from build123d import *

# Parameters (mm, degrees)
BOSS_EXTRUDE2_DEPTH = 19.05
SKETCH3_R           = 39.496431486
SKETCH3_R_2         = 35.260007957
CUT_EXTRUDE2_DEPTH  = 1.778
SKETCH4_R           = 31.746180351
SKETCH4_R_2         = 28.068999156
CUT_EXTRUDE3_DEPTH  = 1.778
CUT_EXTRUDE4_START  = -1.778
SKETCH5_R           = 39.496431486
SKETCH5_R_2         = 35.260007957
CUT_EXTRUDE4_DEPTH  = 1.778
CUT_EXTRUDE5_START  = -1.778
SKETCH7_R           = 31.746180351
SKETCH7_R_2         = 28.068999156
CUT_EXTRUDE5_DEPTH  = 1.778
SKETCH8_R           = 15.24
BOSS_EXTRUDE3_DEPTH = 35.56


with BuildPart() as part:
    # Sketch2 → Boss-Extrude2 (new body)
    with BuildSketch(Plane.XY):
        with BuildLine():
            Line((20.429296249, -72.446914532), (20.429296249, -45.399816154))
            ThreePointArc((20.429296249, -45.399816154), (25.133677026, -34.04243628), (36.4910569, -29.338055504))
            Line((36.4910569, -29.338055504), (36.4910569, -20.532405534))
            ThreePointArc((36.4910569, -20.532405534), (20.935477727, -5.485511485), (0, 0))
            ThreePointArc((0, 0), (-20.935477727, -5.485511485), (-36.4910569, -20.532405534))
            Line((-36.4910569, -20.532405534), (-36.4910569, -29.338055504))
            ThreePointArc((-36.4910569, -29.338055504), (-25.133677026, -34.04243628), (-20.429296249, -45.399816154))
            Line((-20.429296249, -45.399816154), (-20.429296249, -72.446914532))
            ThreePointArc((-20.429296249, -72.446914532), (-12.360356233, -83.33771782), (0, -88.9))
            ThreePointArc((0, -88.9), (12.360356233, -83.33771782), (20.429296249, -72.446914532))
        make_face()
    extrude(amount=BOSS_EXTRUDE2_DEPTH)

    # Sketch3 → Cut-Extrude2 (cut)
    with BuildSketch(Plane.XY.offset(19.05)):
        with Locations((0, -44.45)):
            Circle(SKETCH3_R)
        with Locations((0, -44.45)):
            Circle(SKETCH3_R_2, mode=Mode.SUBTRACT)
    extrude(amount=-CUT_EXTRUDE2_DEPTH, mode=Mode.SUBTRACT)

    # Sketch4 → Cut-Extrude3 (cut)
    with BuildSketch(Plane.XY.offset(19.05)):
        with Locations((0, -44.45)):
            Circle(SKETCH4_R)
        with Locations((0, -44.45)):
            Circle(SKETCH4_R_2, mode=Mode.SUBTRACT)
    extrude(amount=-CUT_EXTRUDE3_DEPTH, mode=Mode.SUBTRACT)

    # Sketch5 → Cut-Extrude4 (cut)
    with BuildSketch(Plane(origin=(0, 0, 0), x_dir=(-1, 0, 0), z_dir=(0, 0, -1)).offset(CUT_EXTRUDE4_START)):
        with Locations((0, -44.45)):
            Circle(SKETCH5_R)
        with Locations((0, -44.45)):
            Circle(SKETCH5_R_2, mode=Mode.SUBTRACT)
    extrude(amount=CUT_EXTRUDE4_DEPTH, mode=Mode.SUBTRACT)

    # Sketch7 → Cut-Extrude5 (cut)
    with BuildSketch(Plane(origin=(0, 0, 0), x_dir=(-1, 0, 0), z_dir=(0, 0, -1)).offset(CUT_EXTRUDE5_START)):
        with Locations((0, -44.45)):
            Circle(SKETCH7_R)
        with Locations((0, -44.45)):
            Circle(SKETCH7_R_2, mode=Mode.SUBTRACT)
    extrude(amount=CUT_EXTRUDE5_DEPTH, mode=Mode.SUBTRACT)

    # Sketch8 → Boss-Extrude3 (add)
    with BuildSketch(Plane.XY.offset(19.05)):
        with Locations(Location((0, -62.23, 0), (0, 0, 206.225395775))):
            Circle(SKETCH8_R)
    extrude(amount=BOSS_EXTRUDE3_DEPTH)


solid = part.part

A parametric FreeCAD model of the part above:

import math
import FreeCAD as App
import Part
import Sketcher
from FreeCAD import Vector
Q = App.Units.Quantity

doc = App.newDocument("Part")
params = doc.addObject("Spreadsheet::Sheet", "Params")
for row, (alias, value) in enumerate([
    ("pad1_length", "0.75 in"),
    ("pocket1_length", "0.07 in"),
    ("pocket2_length", "0.07 in"),
    ("pocket3_length", "0.07 in"),
    ("pocket4_length", "0.07 in"),
    ("sketch6_diameter", "1.2 in"),
    ("pad2_length", "1.4 in"),
], start=1):
    params.set(f"A{row}", alias)
    params.set(f"B{row}", "=" + value)
    params.setAlias(f"B{row}", alias)

body = doc.addObject("PartDesign::Body", "Body")

# Sketch on XY plane
sketch1 = doc.addObject("Sketcher::SketchObject", "Sketch")
body.addObject(sketch1)
sketch1.AttachmentSupport = (doc.XY_Plane, [""])
sketch1.MapMode = "FlatFace"
sketch1.addGeometry([
    Part.LineSegment(Vector(20, -72, 0), Vector(20, -45, 0)),  # 0
    Part.ArcOfCircle(Part.Circle(Vector(36, -45, 0), Vector(0, 0, 1), 16), math.radians(90), math.radians(180)),  # 1
    Part.LineSegment(Vector(36, -29, 0), Vector(36, -21, 0)),  # 2
    Part.ArcOfCircle(Part.Circle(Vector(0, -43, 0), Vector(0, 0, 1), 43), math.radians(31), math.radians(90)),  # 3
    Part.ArcOfCircle(Part.Circle(Vector(0, -43, 0), Vector(0, 0, 1), 43), math.radians(90), math.radians(149)),  # 4
    Part.LineSegment(Vector(-36, -21, 0), Vector(-36, -29, 0)),  # 5
    Part.ArcOfCircle(Part.Circle(Vector(-36, -45, 0), Vector(0, 0, 1), 16), math.radians(0), math.radians(90)),  # 6
    Part.LineSegment(Vector(-20, -45, 0), Vector(-20, -72, 0)),  # 7
    Part.ArcOfCircle(Part.Circle(Vector(4, -62, 0), Vector(0, 0, 1), 27), math.radians(-158), math.radians(-100)),  # 8
    Part.ArcOfCircle(Part.Circle(Vector(-4, -62, 0), Vector(0, 0, 1), 27), math.radians(-80), math.radians(-22)),  # 9
], False)
sketch1.addConstraint([
    Sketcher.Constraint("Tangent", 0, 2, 1, 2),
    Sketcher.Constraint("Coincident", 1, 1, 2, 1),
    Sketcher.Constraint("Coincident", 2, 2, 3, 1),
    Sketcher.Constraint("Tangent", 3, 2, 4, 1),
    Sketcher.Constraint("Coincident", 4, 2, 5, 1),
    Sketcher.Constraint("Coincident", 5, 2, 6, 2),
    Sketcher.Constraint("Tangent", 6, 1, 7, 1),
    Sketcher.Constraint("Coincident", 7, 2, 8, 1),
    Sketcher.Constraint("Coincident", 8, 2, 9, 1),
    Sketcher.Constraint("Coincident", 9, 2, 0, 1),
    Sketcher.Constraint("Vertical", 0),
    Sketcher.Constraint("Vertical", 2),
    Sketcher.Constraint("Vertical", 5),
    Sketcher.Constraint("Vertical", 7),
    Sketcher.Constraint("Coincident", 3, 2, -1, 1),
    Sketcher.Constraint("Equal", 3, 4),
    Sketcher.Constraint("Equal", 1, 6),
    Sketcher.Constraint("Equal", 8, 9),
    Sketcher.Constraint("Symmetric", 1, 3, 6, 3, -2),
    Sketcher.Constraint("Symmetric", 8, 3, 9, 3, -2),
    Sketcher.Constraint("Symmetric", 2, 2, 4, 2, -2),
    Sketcher.Constraint("Vertical", 6, 3, 4, 2),
    Sketcher.Constraint("DistanceY", 8, 2, -1, 1, Q("3.5 in")),
    Sketcher.Constraint("Radius", 1, 16.061761),
    Sketcher.Constraint("Radius", 8, 26.852441),
    Sketcher.Constraint("DistanceY", 0, 1, 0, 2, 27.047098),
    Sketcher.Constraint("Radius", 3, 42.692925),
    Sketcher.Constraint("DistanceY", 2, 1, 2, 2, 8.80565),
    Sketcher.Constraint("DistanceY", 8, 3, -1, 1, 62.42435),
])
pad1 = doc.addObject("PartDesign::Pad", "Pad")
body.addObject(pad1)
pad1.Profile = sketch1
pad1.setExpression("Length", "Params.pad1_length")

# Sketch on XY plane
sketch2 = doc.addObject("Sketcher::SketchObject", "Sketch001")
body.addObject(sketch2)
sketch2.AttachmentSupport = (doc.XY_Plane, [""])
sketch2.MapMode = "FlatFace"
sketch2.AttachmentOffset = App.Placement(Vector(0, 0, 0.75 * 25.4), App.Rotation())
sketch2.addGeometry([
    Part.Circle(Vector(0, -44, 0), Vector(0, 0, 1), 39),
    Part.Circle(Vector(0, -44, 0), Vector(0, 0, 1), 35),
], False)
sketch2.addConstraint([
    Sketcher.Constraint("Coincident", 1, 3, 0, 3),
    Sketcher.Constraint("PointOnObject", 0, 3, -2),
    Sketcher.Constraint("DistanceY", 0, 3, -1, 1, Q("1.75 in")),
    Sketcher.Constraint("Diameter", 0, 78.992863),
    Sketcher.Constraint("Diameter", 1, 70.520016),
])
pocket1 = doc.addObject("PartDesign::Pocket", "Pocket")
body.addObject(pocket1)
pocket1.Profile = sketch2
pocket1.setExpression("Length", "Params.pocket1_length")

# Sketch on XY plane
sketch3 = doc.addObject("Sketcher::SketchObject", "Sketch002")
body.addObject(sketch3)
sketch3.AttachmentSupport = (doc.XY_Plane, [""])
sketch3.MapMode = "FlatFace"
sketch3.AttachmentOffset = App.Placement(Vector(0, 0, 0.75 * 25.4), App.Rotation())
sketch3.addGeometry([
    Part.Circle(Vector(0, -44, 0), Vector(0, 0, 1), 32),
    Part.Circle(Vector(0, -44, 0), Vector(0, 0, 1), 28),
], False)
sketch3.addConstraint([
    Sketcher.Constraint("Coincident", 1, 3, 0, 3),
    Sketcher.Constraint("PointOnObject", 0, 3, -2),
    Sketcher.Constraint("Diameter", 1, 56.137998),
    Sketcher.Constraint("DistanceY", 0, 3, -1, 1, Q("1.75 in")),
    Sketcher.Constraint("Diameter", 0, 63.492361),
])
pocket2 = doc.addObject("PartDesign::Pocket", "Pocket001")
body.addObject(pocket2)
pocket2.Profile = sketch3
pocket2.setExpression("Length", "Params.pocket2_length")

# Sketch on XY plane
sketch4 = doc.addObject("Sketcher::SketchObject", "Sketch003")
body.addObject(sketch4)
sketch4.AttachmentSupport = (doc.XY_Plane, [""])
sketch4.MapMode = "FlatFace"
sketch4.AttachmentOffset = App.Placement(Vector(0, 0, 0.07 * 25.4), App.Rotation())
sketch4.addGeometry([
    Part.Circle(Vector(0, -44, 0), Vector(0, 0, 1), 39),
    Part.Circle(Vector(0, -44, 0), Vector(0, 0, 1), 35),
], False)
sketch4.addConstraint([
    Sketcher.Constraint("Coincident", 1, 3, 0, 3),
    Sketcher.Constraint("PointOnObject", 0, 3, -2),
    Sketcher.Constraint("DistanceY", 0, 3, -1, 1, Q("1.75 in")),
    Sketcher.Constraint("Diameter", 0, 78.992863),
    Sketcher.Constraint("Diameter", 1, 70.520016),
])
pocket3 = doc.addObject("PartDesign::Pocket", "Pocket002")
body.addObject(pocket3)
pocket3.Profile = sketch4
pocket3.setExpression("Length", "Params.pocket3_length")

# Sketch on XY plane
sketch5 = doc.addObject("Sketcher::SketchObject", "Sketch004")
body.addObject(sketch5)
sketch5.AttachmentSupport = (doc.XY_Plane, [""])
sketch5.MapMode = "FlatFace"
sketch5.AttachmentOffset = App.Placement(Vector(0, 0, 0.07 * 25.4), App.Rotation())
sketch5.addGeometry([
    Part.Circle(Vector(0, -44, 0), Vector(0, 0, 1), 32),
    Part.Circle(Vector(0, -44, 0), Vector(0, 0, 1), 28),
], False)
sketch5.addConstraint([
    Sketcher.Constraint("Coincident", 1, 3, 0, 3),
    Sketcher.Constraint("PointOnObject", 0, 3, -2),
    Sketcher.Constraint("Diameter", 1, 56.137998),
    Sketcher.Constraint("DistanceY", 0, 3, -1, 1, Q("1.75 in")),
    Sketcher.Constraint("Diameter", 0, 63.492361),
])
pocket4 = doc.addObject("PartDesign::Pocket", "Pocket003")
body.addObject(pocket4)
pocket4.Profile = sketch5
pocket4.setExpression("Length", "Params.pocket4_length")

# Sketch on XY plane
sketch6 = doc.addObject("Sketcher::SketchObject", "Sketch005")
body.addObject(sketch6)
sketch6.AttachmentSupport = (doc.XY_Plane, [""])
sketch6.MapMode = "FlatFace"
sketch6.AttachmentOffset = App.Placement(Vector(0, 0, 0.75 * 25.4), App.Rotation())
sketch6.addGeometry(Part.Circle(Vector(0, -62, 0), Vector(0, 0, 1), 15), False)
sketch6.addConstraint([
    Sketcher.Constraint("PointOnObject", 0, 3, -2),
    Sketcher.Constraint("Diameter", 0, Q("1.2 in")),
    Sketcher.Constraint("DistanceY", 0, 3, -1, 1, Q("2.45 in")),
])
sketch6.setExpression("Constraints[1]", "Params.sketch6_diameter")
pad2 = doc.addObject("PartDesign::Pad", "Pad001")
body.addObject(pad2)
pad2.Profile = sketch6
pad2.setExpression("Length", "Params.pad2_length")

doc.recompute()
